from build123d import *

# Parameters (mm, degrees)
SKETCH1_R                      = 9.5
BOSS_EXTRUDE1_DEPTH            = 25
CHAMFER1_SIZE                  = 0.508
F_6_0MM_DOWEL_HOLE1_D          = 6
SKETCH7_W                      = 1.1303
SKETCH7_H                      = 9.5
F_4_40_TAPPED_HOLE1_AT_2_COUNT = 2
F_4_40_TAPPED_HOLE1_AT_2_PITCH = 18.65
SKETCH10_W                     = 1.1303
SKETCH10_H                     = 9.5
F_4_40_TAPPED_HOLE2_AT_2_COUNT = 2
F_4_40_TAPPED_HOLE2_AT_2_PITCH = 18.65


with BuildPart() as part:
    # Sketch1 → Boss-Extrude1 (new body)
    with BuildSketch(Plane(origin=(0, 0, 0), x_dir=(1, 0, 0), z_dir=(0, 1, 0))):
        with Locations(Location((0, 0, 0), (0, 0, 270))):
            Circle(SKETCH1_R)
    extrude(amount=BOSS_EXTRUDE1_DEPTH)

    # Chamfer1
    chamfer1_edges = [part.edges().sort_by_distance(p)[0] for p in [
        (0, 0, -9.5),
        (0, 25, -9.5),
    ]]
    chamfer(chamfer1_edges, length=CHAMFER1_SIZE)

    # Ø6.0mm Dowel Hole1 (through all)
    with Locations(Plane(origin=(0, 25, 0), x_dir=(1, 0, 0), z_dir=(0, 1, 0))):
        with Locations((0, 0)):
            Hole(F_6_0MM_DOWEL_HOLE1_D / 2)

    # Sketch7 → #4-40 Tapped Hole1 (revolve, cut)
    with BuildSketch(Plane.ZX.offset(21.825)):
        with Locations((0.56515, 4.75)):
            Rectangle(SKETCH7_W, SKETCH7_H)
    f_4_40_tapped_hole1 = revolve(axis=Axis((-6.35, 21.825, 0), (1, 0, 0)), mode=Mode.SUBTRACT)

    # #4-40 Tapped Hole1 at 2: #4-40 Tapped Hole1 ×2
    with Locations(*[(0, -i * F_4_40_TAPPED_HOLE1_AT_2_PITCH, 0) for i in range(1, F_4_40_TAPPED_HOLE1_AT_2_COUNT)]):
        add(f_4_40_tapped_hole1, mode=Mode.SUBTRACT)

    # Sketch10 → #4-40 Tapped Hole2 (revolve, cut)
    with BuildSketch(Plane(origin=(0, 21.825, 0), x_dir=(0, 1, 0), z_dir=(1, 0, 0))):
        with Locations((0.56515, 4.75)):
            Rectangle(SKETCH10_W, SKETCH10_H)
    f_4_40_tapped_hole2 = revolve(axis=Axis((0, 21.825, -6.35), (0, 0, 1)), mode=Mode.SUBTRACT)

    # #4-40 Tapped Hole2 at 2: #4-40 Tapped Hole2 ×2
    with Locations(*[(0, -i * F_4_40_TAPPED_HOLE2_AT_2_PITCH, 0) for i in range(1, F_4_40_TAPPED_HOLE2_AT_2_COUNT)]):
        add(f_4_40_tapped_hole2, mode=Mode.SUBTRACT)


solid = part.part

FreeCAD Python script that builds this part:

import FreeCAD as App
import Part
import Sketcher
Q = App.Units.Quantity


def edges_at(feature, points):
    """Names of the edges that pass closest to the given points."""
    edges = feature.Shape.Edges
    near = lambda p: min(range(len(edges)), key=lambda i: edges[i].distToShape(Part.Vertex(*p))[0])
    return sorted({f"Edge{near(p) + 1}" for p in points})

doc = App.newDocument("Part")
body = doc.addObject("PartDesign::Body", "Body")

# Sketch on XZ plane
sketch1 = body.newObject("Sketcher::SketchObject", "Sketch")
sketch1.AttachmentSupport = (doc.getObject("XZ_Plane"), [""])
sketch1.MapMode = "FlatFace"
sketch1.addGeometry(Part.Circle(App.Vector(0, 0, 0), App.Vector(0, 0, 1), 10), False)
sketch1.addConstraint([
    Sketcher.Constraint("Coincident", 0, 3, -1, 1),
    Sketcher.Constraint("Diameter", 0, Q("19 mm")),
])
pad1 = body.newObject("PartDesign::Pad", "Pad")
pad1.Profile = sketch1
pad1.Length = 25
pad1.Reversed = True
doc.recompute()

chamfer = body.newObject("PartDesign::Chamfer", "Chamfer")
chamfer.Base = (pad1, edges_at(pad1, [(0, 0, -9.5), (0, 25, -9.5)]))
chamfer.Size = 0.508

# Sketch on XZ plane
sketch2 = body.newObject("Sketcher::SketchObject", "Sketch001")
sketch2.AttachmentSupport = (doc.getObject("XZ_Plane"), [""])
sketch2.MapMode = "FlatFace"
sketch2.AttachmentOffset = App.Placement(App.Vector(0, 0, -25), App.Rotation())
sketch2.addGeometry(Part.Circle(App.Vector(0, 0, 0), App.Vector(0, 0, 1), 3), False)
sketch2.addConstraint([
    Sketcher.Constraint("Coincident", 0, 3, -1, 1),
    Sketcher.Constraint("Diameter", 0, Q("6 mm")),
])
doc.recompute()
hole = body.newObject("PartDesign::Hole", "Hole")
hole.Profile = sketch2
hole.ThreadType = "None"
hole.Diameter = 6
hole.DepthType = "ThroughAll"
hole.Reversed = True

# Sketch on XZ plane
sketch3 = body.newObject("Sketcher::SketchObject", "Sketch002")
sketch3.AttachmentSupport = (doc.getObject("XZ_Plane"), [""])
sketch3.MapMode = "FlatFace"
sketch3.AttachmentOffset = App.Placement(App.Vector(0, 0, -21.825), App.Rotation())
sketch3.addGeometry([
    Part.LineSegment(App.Vector(9.5, 0, 0), App.Vector(0, 0, 0)),
    Part.LineSegment(App.Vector(0, 0, 0), App.Vector(0, 1.1, 0)),
    Part.LineSegment(App.Vector(0, 1.1, 0), App.Vector(9.5, 1.1, 0)),
    Part.LineSegment(App.Vector(9.5, 1.1, 0), App.Vector(9.5, 0, 0)),
], False)
sketch3.addConstraint([
    Sketcher.Constraint("Coincident", 0, 2, 1, 1),
    Sketcher.Constraint("Coincident", 1, 2, 2, 1),
    Sketcher.Constraint("Coincident", 2, 2, 3, 1),
    Sketcher.Constraint("Coincident", 3, 2, 0, 1),
    Sketcher.Constraint("Horizontal", 0),
    Sketcher.Constraint("Vertical", 1),
    Sketcher.Constraint("Horizontal", 2),
    Sketcher.Constraint("Vertical", 3),
    Sketcher.Constraint("Coincident", 0, 2, -1, 1),
    Sketcher.Constraint("DistanceX", 0, 2, 0, 1, Q("9.5 mm")),
    Sketcher.Constraint("DistanceY", 1, 1, 1, 2, Q("1.1303 mm")),
])
groove = body.newObject("PartDesign::Groove", "Groove")
groove.Profile = sketch3
groove.ReferenceAxis = (sketch3, ["H_Axis"])
groove.Angle = 360
doc.recompute()

linearpattern = body.newObject("PartDesign::LinearPattern", "LinearPattern")
linearpattern.Originals = [groove]
linearpattern.Direction = (doc.getObject("Y_Axis"), [""])
linearpattern.Mode = "offset"
linearpattern.Offset = 18.65
linearpattern.Occurrences = 2
linearpattern.Reversed = True
body.Tip = linearpattern

# Sketch on YZ plane
sketch4 = body.newObject("Sketcher::SketchObject", "Sketch003")
sketch4.AttachmentSupport = (doc.getObject("YZ_Plane"), [""])
sketch4.MapMode = "FlatFace"
sketch4.addGeometry([
    Part.LineSegment(App.Vector(21.8, 9.5, 0), App.Vector(21.8, 0, 0)),
    Part.LineSegment(App.Vector(21.8, 0, 0), App.Vector(23, 0, 0)),
    Part.LineSegment(App.Vector(23, 0, 0), App.Vector(23, 9.5, 0)),
    Part.LineSegment(App.Vector(23, 9.5, 0), App.Vector(21.8, 9.5, 0)),
], False)
sketch4.addGeometry(Part.LineSegment(App.Vector(21.8, 0, 0), App.Vector(21.8, 9.5, 0)), True)  # axis
sketch4.addConstraint([
    Sketcher.Constraint("Coincident", 0, 2, 1, 1),
    Sketcher.Constraint("Coincident", 1, 2, 2, 1),
    Sketcher.Constraint("Coincident", 2, 2, 3, 1),
    Sketcher.Constraint("Coincident", 3, 2, 0, 1),
    Sketcher.Constraint("Vertical", 0),
    Sketcher.Constraint("Horizontal", 1),
    Sketcher.Constraint("Vertical", 2),
    Sketcher.Constraint("Horizontal", 3),
    Sketcher.Constraint("Vertical", 4),
    Sketcher.Constraint("Coincident", 4, 1, 0, 2),
    Sketcher.Constraint("PointOnObject", 0, 2, -1),
    Sketcher.Constraint("Horizontal", 2, 2, 4, 2),
    Sketcher.Constraint("DistanceY", 0, 2, 0, 1, Q("9.5 mm")),
    Sketcher.Constraint("DistanceX", 1, 1, 1, 2, Q("1.1303 mm")),
    Sketcher.Constraint("DistanceX", -1, 1, 0, 2, Q("21.825 mm")),
])
groove2 = body.newObject("PartDesign::Groove", "Groove001")
groove2.Profile = sketch4
groove2.ReferenceAxis = (sketch4, ["Axis0"])
groove2.Angle = 360
doc.recompute()

linearpattern2 = body.newObject("PartDesign::LinearPattern", "LinearPattern001")
linearpattern2.Originals = [groove2]
linearpattern2.Direction = (doc.getObject("Y_Axis"), [""])
linearpattern2.Mode = "offset"
linearpattern2.Offset = 18.65
linearpattern2.Occurrences = 2
linearpattern2.Reversed = True
body.Tip = linearpattern2

doc.recompute()
